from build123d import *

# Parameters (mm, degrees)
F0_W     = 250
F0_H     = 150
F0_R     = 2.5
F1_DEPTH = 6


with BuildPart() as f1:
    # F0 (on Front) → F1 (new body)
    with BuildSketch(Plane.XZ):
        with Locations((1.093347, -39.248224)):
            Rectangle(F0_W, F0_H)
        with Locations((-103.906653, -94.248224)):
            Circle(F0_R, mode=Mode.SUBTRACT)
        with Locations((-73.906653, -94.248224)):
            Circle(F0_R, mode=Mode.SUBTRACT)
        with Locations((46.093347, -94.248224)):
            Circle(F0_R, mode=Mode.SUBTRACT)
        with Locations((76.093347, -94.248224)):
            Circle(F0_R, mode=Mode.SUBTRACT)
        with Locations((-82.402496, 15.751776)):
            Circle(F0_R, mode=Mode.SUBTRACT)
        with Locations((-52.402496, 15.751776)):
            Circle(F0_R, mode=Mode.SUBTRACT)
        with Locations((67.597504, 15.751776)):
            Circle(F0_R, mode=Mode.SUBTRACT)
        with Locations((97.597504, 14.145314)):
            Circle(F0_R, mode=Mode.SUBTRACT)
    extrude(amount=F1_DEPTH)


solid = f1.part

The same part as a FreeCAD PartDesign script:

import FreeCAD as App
import Part
import Sketcher
from FreeCAD import Vector
Q = App.Units.Quantity

doc = App.newDocument("Part")
params = doc.addObject("Spreadsheet::Sheet", "Params")
for row, (alias, value) in enumerate([
    ("sketch1_diameter", "5 mm"),
    ("sketch1_width", "250 mm"),
    ("sketch1_height", "150 mm"),
    ("pad1_length", "6 mm"),
], start=1):
    params.set(f"A{row}", alias)
    params.set(f"B{row}", "=" + value)
    params.setAlias(f"B{row}", alias)

body = doc.addObject("PartDesign::Body", "Body")

sketch1 = doc.addObject("Sketcher::SketchObject", "Sketch")
body.addObject(sketch1)
sketch1.AttachmentSupport = (doc.XZ_Plane, [""])
sketch1.MapMode = "FlatFace"
sketch1.addGeometry([
    Part.LineSegment(Vector(-123.9, 35.8, 0), Vector(-123.9, -114.2, 0)),
    Part.LineSegment(Vector(-123.9, -114.2, 0), Vector(126.1, -114.2, 0)),
    Part.LineSegment(Vector(126.1, -114.2, 0), Vector(126.1, 35.8, 0)),
    Part.LineSegment(Vector(126.1, 35.8, 0), Vector(-123.9, 35.8, 0)),
    Part.Circle(Vector(-103.9, -94.2, 0), Vector(0, 0, 1), 2.5),
    Part.Circle(Vector(-73.9, -94.2, 0), Vector(0, 0, 1), 2.5),
    Part.Circle(Vector(46.1, -94.2, 0), Vector(0, 0, 1), 2.5),
    Part.Circle(Vector(76.1, -94.2, 0), Vector(0, 0, 1), 2.5),
    Part.Circle(Vector(-82.4, 15.8, 0), Vector(0, 0, 1), 2.5),
    Part.Circle(Vector(-52.4, 15.8, 0), Vector(0, 0, 1), 2.5),
    Part.Circle(Vector(67.6, 15.8, 0), Vector(0, 0, 1), 2.5),
    Part.Circle(Vector(97.6, 14.1, 0), Vector(0, 0, 1), 2.5),
], False)
sketch1.addConstraint([
    Sketcher.Constraint("Coincident", 0, 2, 1, 1),
    Sketcher.Constraint("Coincident", 1, 2, 2, 1),
    Sketcher.Constraint("Coincident", 2, 2, 3, 1),
    Sketcher.Constraint("Coincident", 3, 2, 0, 1),
    Sketcher.Constraint("Vertical", 0),
    Sketcher.Constraint("Horizontal", 1),
    Sketcher.Constraint("Vertical", 2),
    Sketcher.Constraint("Horizontal", 3),
    Sketcher.Constraint("Equal", 4, 5),
    Sketcher.Constraint("Equal", 5, 6),
    Sketcher.Constraint("Equal", 6, 7),
    Sketcher.Constraint("Equal", 7, 8),
    Sketcher.Constraint("Equal", 8, 9),
    Sketcher.Constraint("Equal", 9, 10),
    Sketcher.Constraint("Equal", 10, 11),
    Sketcher.Constraint("Horizontal", 4, 3, 5, 3),
    Sketcher.Constraint("Horizontal", 5, 3, 6, 3),
    Sketcher.Constraint("Horizontal", 6, 3, 7, 3),
    Sketcher.Constraint("Horizontal", 8, 3, 9, 3),
    Sketcher.Constraint("Horizontal", 9, 3, 10, 3),
    Sketcher.Constraint("Diameter", 4, Q("5 mm")),
    Sketcher.Constraint("DistanceX", 1, 1, 1, 2, Q("250 mm")),
    Sketcher.Constraint("DistanceY", 0, 2, 0, 1, Q("150 mm")),
    Sketcher.Constraint("DistanceX", 4, 3, 5, 3, Q("30 mm")),
    Sketcher.Constraint("DistanceX", 5, 3, 6, 3, Q("120 mm")),
    Sketcher.Constraint("DistanceX", 6, 3, 7, 3, Q("30 mm")),
    Sketcher.Constraint("DistanceY", 5, 3, 8, 3, Q("110 mm")),
    Sketcher.Constraint("DistanceX", 8, 3, 9, 3, Q("30 mm")),
    Sketcher.Constraint("DistanceX", 9, 3, 10, 3, Q("120 mm")),
    Sketcher.Constraint("DistanceX", 10, 3, 11, 3, Q("30 mm")),
    Sketcher.Constraint("DistanceX", 0, 2, 4, 3, Q("20 mm")),
    Sketcher.Constraint("DistanceY", 0, 2, 4, 3, Q("20 mm")),
    Sketcher.Constraint("DistanceY", 11, 3, 10, 3, Q("1.606462 mm")),
    Sketcher.Constraint("DistanceX", 4, 3, -1, 1, Q("103.906653 mm")),
    Sketcher.Constraint("DistanceY", 4, 3, -1, 1, Q("94.248224 mm")),
    Sketcher.Constraint("DistanceX", 8, 3, -1, 1, Q("82.402496 mm")),
])
sketch1.setExpression("Constraints[20]", "Params.sketch1_diameter")
sketch1.setExpression("Constraints[21]", "Params.sketch1_width")
sketch1.setExpression("Constraints[22]", "Params.sketch1_height")
pad1 = doc.addObject("PartDesign::Pad", "Pad")
body.addObject(pad1)
pad1.Profile = sketch1
pad1.setExpression("Length", "Params.pad1_length")

doc.recompute()
